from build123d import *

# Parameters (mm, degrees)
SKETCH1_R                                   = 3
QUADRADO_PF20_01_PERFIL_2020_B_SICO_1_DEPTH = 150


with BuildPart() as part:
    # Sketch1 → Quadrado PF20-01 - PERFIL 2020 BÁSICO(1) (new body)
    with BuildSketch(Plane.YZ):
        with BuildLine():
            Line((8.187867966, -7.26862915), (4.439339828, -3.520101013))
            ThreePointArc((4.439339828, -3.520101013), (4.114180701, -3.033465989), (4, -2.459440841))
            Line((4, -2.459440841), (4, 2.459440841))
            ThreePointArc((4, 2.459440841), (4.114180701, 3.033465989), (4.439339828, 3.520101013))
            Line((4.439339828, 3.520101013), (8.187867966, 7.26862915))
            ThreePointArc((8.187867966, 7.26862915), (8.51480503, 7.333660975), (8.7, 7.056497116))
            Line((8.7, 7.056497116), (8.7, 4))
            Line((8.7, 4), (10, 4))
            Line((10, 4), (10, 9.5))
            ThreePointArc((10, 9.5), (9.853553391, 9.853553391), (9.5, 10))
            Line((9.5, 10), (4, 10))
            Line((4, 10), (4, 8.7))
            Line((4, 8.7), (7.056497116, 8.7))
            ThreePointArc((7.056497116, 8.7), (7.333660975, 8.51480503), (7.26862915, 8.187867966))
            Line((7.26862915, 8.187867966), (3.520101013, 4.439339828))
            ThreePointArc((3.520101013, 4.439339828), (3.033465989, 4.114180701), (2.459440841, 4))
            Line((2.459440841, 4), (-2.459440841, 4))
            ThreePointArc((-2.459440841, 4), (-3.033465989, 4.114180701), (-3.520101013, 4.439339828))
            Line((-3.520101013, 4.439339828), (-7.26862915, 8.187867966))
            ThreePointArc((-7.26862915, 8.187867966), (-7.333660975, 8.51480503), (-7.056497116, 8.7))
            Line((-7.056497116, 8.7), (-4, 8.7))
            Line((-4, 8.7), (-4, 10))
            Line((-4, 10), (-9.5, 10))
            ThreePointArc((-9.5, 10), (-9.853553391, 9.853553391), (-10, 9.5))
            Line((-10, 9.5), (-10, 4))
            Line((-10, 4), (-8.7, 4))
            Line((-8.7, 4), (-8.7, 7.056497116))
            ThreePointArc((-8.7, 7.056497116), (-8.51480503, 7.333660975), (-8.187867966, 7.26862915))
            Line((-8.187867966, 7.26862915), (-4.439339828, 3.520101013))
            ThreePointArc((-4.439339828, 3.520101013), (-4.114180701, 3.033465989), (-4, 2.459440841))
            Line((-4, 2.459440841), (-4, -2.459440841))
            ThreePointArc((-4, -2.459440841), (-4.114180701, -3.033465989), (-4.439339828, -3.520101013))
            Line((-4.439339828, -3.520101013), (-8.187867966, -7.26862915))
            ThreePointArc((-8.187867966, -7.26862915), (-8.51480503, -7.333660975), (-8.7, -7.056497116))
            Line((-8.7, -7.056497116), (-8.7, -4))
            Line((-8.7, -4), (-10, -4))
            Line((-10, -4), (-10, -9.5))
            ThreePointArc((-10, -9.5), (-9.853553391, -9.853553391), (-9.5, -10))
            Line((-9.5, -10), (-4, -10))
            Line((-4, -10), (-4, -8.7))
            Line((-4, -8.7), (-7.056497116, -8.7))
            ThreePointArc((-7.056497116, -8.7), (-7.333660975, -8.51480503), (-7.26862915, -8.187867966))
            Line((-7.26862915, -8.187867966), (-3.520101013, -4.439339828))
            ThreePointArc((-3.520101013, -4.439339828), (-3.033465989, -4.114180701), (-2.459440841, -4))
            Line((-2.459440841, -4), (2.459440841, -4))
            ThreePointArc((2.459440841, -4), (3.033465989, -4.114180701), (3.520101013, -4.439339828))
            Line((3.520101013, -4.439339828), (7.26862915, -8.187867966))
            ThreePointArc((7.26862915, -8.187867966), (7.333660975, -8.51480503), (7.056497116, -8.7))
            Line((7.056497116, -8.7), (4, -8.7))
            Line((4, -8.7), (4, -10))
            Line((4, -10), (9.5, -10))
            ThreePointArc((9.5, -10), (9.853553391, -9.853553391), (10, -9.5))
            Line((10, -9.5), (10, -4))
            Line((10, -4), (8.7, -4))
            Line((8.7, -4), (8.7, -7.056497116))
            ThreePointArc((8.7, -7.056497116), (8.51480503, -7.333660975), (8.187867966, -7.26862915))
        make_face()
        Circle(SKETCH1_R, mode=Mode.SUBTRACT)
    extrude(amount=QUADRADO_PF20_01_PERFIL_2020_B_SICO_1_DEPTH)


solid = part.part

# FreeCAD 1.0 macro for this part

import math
import FreeCAD as App
import Part
import Sketcher
from FreeCAD import Vector
Q = App.Units.Quantity

doc = App.newDocument("Part")
body = doc.addObject("PartDesign::Body", "Body")

sketch1 = body.newObject("Sketcher::SketchObject", "Sketch")
sketch1.AttachmentSupport = (doc.getObject("YZ_Plane"), [""])
sketch1.MapMode = "FlatFace"
sketch1.addGeometry([
    Part.LineSegment(Vector(8.187868, -7.268629, 0), Vector(4.43934, -3.520101, 0)),
    Part.ArcOfCircle(Part.Circle(Vector(5.5, -2.459441, 0), Vector(0, 0, 1), 1.5), math.radians(180), math.radians(225)),
    Part.LineSegment(Vector(4, -2.459441, 0), Vector(4, 2.459441, 0)),
    Part.ArcOfCircle(Part.Circle(Vector(5.5, 2.459441, 0), Vector(0, 0, 1), 1.5), math.radians(135), math.radians(180)),
    Part.LineSegment(Vector(4.43934, 3.520101, 0), Vector(8.187868, 7.268629, 0)),
    Part.ArcOfCircle(Part.Circle(Vector(8.4, 7.056497, 0), Vector(0, 0, 1), 0.3), math.radians(0), math.radians(135)),
    Part.LineSegment(Vector(8.7, 7.056497, 0), Vector(8.7, 4, 0)),
    Part.LineSegment(Vector(8.7, 4, 0), Vector(10, 4, 0)),
    Part.LineSegment(Vector(10, 4, 0), Vector(10, 9.5, 0)),
    Part.ArcOfCircle(Part.Circle(Vector(9.5, 9.5, 0), Vector(0, 0, 1), 0.5), math.radians(0), math.radians(90)),
    Part.LineSegment(Vector(9.5, 10, 0), Vector(4, 10, 0)),
    Part.LineSegment(Vector(4, 10, 0), Vector(4, 8.7, 0)),
    Part.LineSegment(Vector(4, 8.7, 0), Vector(7.056497, 8.7, 0)),
    Part.ArcOfCircle(Part.Circle(Vector(7.056497, 8.4, 0), Vector(0, 0, 1), 0.3), math.radians(-45), math.radians(90)),
    Part.LineSegment(Vector(7.268629, 8.187868, 0), Vector(3.520101, 4.43934, 0)),
    Part.ArcOfCircle(Part.Circle(Vector(2.459441, 5.5, 0), Vector(0, 0, 1), 1.5), math.radians(-90), math.radians(-45)),
    Part.LineSegment(Vector(2.459441, 4, 0), Vector(-2.459441, 4, 0)),
    Part.ArcOfCircle(Part.Circle(Vector(-2.459441, 5.5, 0), Vector(0, 0, 1), 1.5), math.radians(-135), math.radians(-90)),
    Part.LineSegment(Vector(-3.520101, 4.43934, 0), Vector(-7.268629, 8.187868, 0)),
    Part.ArcOfCircle(Part.Circle(Vector(-7.056497, 8.4, 0), Vector(0, 0, 1), 0.3), math.radians(90), math.radians(225)),
    Part.LineSegment(Vector(-7.056497, 8.7, 0), Vector(-4, 8.7, 0)),
    Part.LineSegment(Vector(-4, 8.7, 0), Vector(-4, 10, 0)),
    Part.LineSegment(Vector(-4, 10, 0), Vector(-9.5, 10, 0)),
    Part.ArcOfCircle(Part.Circle(Vector(-9.5, 9.5, 0), Vector(0, 0, 1), 0.5), math.radians(90), math.radians(180)),
    Part.LineSegment(Vector(-10, 9.5, 0), Vector(-10, 4, 0)),
    Part.LineSegment(Vector(-10, 4, 0), Vector(-8.7, 4, 0)),
    Part.LineSegment(Vector(-8.7, 4, 0), Vector(-8.7, 7.056497, 0)),
    Part.ArcOfCircle(Part.Circle(Vector(-8.4, 7.056497, 0), Vector(0, 0, 1), 0.3), math.radians(45), math.radians(180)),
    Part.LineSegment(Vector(-8.187868, 7.268629, 0), Vector(-4.43934, 3.520101, 0)),
    Part.ArcOfCircle(Part.Circle(Vector(-5.5, 2.459441, 0), Vector(0, 0, 1), 1.5), math.radians(0), math.radians(45)),
    Part.LineSegment(Vector(-4, 2.459441, 0), Vector(-4, -2.459441, 0)),
    Part.ArcOfCircle(Part.Circle(Vector(-5.5, -2.459441, 0), Vector(0, 0, 1), 1.5), math.radians(-45), math.radians(0)),
    Part.LineSegment(Vector(-4.43934, -3.520101, 0), Vector(-8.187868, -7.268629, 0)),
    Part.ArcOfCircle(Part.Circle(Vector(-8.4, -7.056497, 0), Vector(0, 0, 1), 0.3), math.radians(-180), math.radians(-45)),
    Part.LineSegment(Vector(-8.7, -7.056497, 0), Vector(-8.7, -4, 0)),
    Part.LineSegment(Vector(-8.7, -4, 0), Vector(-10, -4, 0)),
    Part.LineSegment(Vector(-10, -4, 0), Vector(-10, -9.5, 0)),
    Part.ArcOfCircle(Part.Circle(Vector(-9.5, -9.5, 0), Vector(0, 0, 1), 0.5), math.radians(180), math.radians(270)),
    Part.LineSegment(Vector(-9.5, -10, 0), Vector(-4, -10, 0)),
    Part.LineSegment(Vector(-4, -10, 0), Vector(-4, -8.7, 0)),
    Part.LineSegment(Vector(-4, -8.7, 0), Vector(-7.056497, -8.7, 0)),
    Part.ArcOfCircle(Part.Circle(Vector(-7.056497, -8.4, 0), Vector(0, 0, 1), 0.3), math.radians(135), math.radians(270)),
    Part.LineSegment(Vector(-7.268629, -8.187868, 0), Vector(-3.520101, -4.43934, 0)),
    Part.ArcOfCircle(Part.Circle(Vector(-2.459441, -5.5, 0), Vector(0, 0, 1), 1.5), math.radians(90), math.radians(135)),
    Part.LineSegment(Vector(-2.459441, -4, 0), Vector(2.459441, -4, 0)),
    Part.ArcOfCircle(Part.Circle(Vector(2.459441, -5.5, 0), Vector(0, 0, 1), 1.5), math.radians(45), math.radians(90)),
    Part.LineSegment(Vector(3.520101, -4.43934, 0), Vector(7.268629, -8.187868, 0)),
    Part.ArcOfCircle(Part.Circle(Vector(7.056497, -8.4, 0), Vector(0, 0, 1), 0.3), math.radians(-90), math.radians(45)),
    Part.LineSegment(Vector(7.056497, -8.7, 0), Vector(4, -8.7, 0)),
    Part.LineSegment(Vector(4, -8.7, 0), Vector(4, -10, 0)),
    Part.LineSegment(Vector(4, -10, 0), Vector(9.5, -10, 0)),
    Part.ArcOfCircle(Part.Circle(Vector(9.5, -9.5, 0), Vector(0, 0, 1), 0.5), math.radians(-90), math.radians(0)),
    Part.LineSegment(Vector(10, -9.5, 0), Vector(10, -4, 0)),
    Part.LineSegment(Vector(10, -4, 0), Vector(8.7, -4, 0)),
    Part.LineSegment(Vector(8.7, -4, 0), Vector(8.7, -7.056497, 0)),
    Part.ArcOfCircle(Part.Circle(Vector(8.4, -7.056497, 0), Vector(0, 0, 1), 0.3), math.radians(-135), math.radians(0)),
    Part.Circle(Vector(0, 0, 0), Vector(0, 0, 1), 3),
], False)
sketch1.addConstraint([
    Sketcher.Constraint("Tangent", 0, 2, 1, 2),
    Sketcher.Constraint("Tangent", 1, 1, 2, 1),
    Sketcher.Constraint("Tangent", 2, 2, 3, 2),
    Sketcher.Constraint("Tangent", 3, 1, 4, 1),
    Sketcher.Constraint("Tangent", 4, 2, 5, 2),
    Sketcher.Constraint("Tangent", 5, 1, 6, 1),
    Sketcher.Constraint("Coincident", 6, 2, 7, 1),
    Sketcher.Constraint("Coincident", 7, 2, 8, 1),
    Sketcher.Constraint("Tangent", 8, 2, 9, 1),
    Sketcher.Constraint("Tangent", 9, 2, 10, 1),
    Sketcher.Constraint("Coincident", 10, 2, 11, 1),
    Sketcher.Constraint("Coincident", 11, 2, 12, 1),
    Sketcher.Constraint("Tangent", 12, 2, 13, 2),
    Sketcher.Constraint("Tangent", 13, 1, 14, 1),
    Sketcher.Constraint("Tangent", 14, 2, 15, 2),
    Sketcher.Constraint("Tangent", 15, 1, 16, 1),
    Sketcher.Constraint("Tangent", 16, 2, 17, 2),
    Sketcher.Constraint("Tangent", 17, 1, 18, 1),
    Sketcher.Constraint("Tangent", 18, 2, 19, 2),
    Sketcher.Constraint("Tangent", 19, 1, 20, 1),
    Sketcher.Constraint("Coincident", 20, 2, 21, 1),
    Sketcher.Constraint("Coincident", 21, 2, 22, 1),
    Sketcher.Constraint("Tangent", 22, 2, 23, 1),
    Sketcher.Constraint("Tangent", 23, 2, 24, 1),
    Sketcher.Constraint("Coincident", 24, 2, 25, 1),
    Sketcher.Constraint("Coincident", 25, 2, 26, 1),
    Sketcher.Constraint("Tangent", 26, 2, 27, 2),
    Sketcher.Constraint("Tangent", 27, 1, 28, 1),
    Sketcher.Constraint("Tangent", 28, 2, 29, 2),
    Sketcher.Constraint("Tangent", 29, 1, 30, 1),
    Sketcher.Constraint("Tangent", 30, 2, 31, 2),
    Sketcher.Constraint("Tangent", 31, 1, 32, 1),
    Sketcher.Constraint("Tangent", 32, 2, 33, 2),
    Sketcher.Constraint("Tangent", 33, 1, 34, 1),
    Sketcher.Constraint("Coincident", 34, 2, 35, 1),
    Sketcher.Constraint("Coincident", 35, 2, 36, 1),
    Sketcher.Constraint("Tangent", 36, 2, 37, 1),
    Sketcher.Constraint("Tangent", 37, 2, 38, 1),
    Sketcher.Constraint("Coincident", 38, 2, 39, 1),
    Sketcher.Constraint("Coincident", 39, 2, 40, 1),
    Sketcher.Constraint("Tangent", 40, 2, 41, 2),
    Sketcher.Constraint("Tangent", 41, 1, 42, 1),
    Sketcher.Constraint("Tangent", 42, 2, 43, 2),
    Sketcher.Constraint("Tangent", 43, 1, 44, 1),
    Sketcher.Constraint("Tangent", 44, 2, 45, 2),
    Sketcher.Constraint("Tangent", 45, 1, 46, 1),
    Sketcher.Constraint("Tangent", 46, 2, 47, 2),
    Sketcher.Constraint("Tangent", 47, 1, 48, 1),
    Sketcher.Constraint("Coincident", 48, 2, 49, 1),
    Sketcher.Constraint("Coincident", 49, 2, 50, 1),
    Sketcher.Constraint("Tangent", 50, 2, 51, 1),
    Sketcher.Constraint("Tangent", 51, 2, 52, 1),
    Sketcher.Constraint("Coincident", 52, 2, 53, 1),
    Sketcher.Constraint("Coincident", 53, 2, 54, 1),
    Sketcher.Constraint("Tangent", 54, 2, 55, 2),
    Sketcher.Constraint("Tangent", 55, 1, 0, 1),
    Sketcher.Constraint("Vertical", 2),
    Sketcher.Constraint("Vertical", 6),
    Sketcher.Constraint("Horizontal", 7),
    Sketcher.Constraint("Vertical", 8),
    Sketcher.Constraint("Horizontal", 10),
    Sketcher.Constraint("Vertical", 11),
    Sketcher.Constraint("Horizontal", 12),
    Sketcher.Constraint("Horizontal", 16),
    Sketcher.Constraint("Horizontal", 20),
    Sketcher.Constraint("Vertical", 21),
    Sketcher.Constraint("Horizontal", 22),
    Sketcher.Constraint("Vertical", 24),
    Sketcher.Constraint("Horizontal", 25),
    Sketcher.Constraint("Vertical", 26),
    Sketcher.Constraint("Vertical", 30),
    Sketcher.Constraint("Vertical", 34),
    Sketcher.Constraint("Horizontal", 35),
    Sketcher.Constraint("Vertical", 36),
    Sketcher.Constraint("Horizontal", 38),
    Sketcher.Constraint("Vertical", 39),
    Sketcher.Constraint("Horizontal", 40),
    Sketcher.Constraint("Horizontal", 44),
    Sketcher.Constraint("Horizontal", 48),
    Sketcher.Constraint("Vertical", 49),
    Sketcher.Constraint("Horizontal", 50),
    Sketcher.Constraint("Vertical", 52),
    Sketcher.Constraint("Horizontal", 53),
    Sketcher.Constraint("Vertical", 54),
    Sketcher.Constraint("Coincident", 56, 3, -1, 1),
    Sketcher.Constraint("Equal", 1, 3),
    Sketcher.Constraint("Equal", 5, 13),
    Sketcher.Constraint("Equal", 3, 15),
    Sketcher.Constraint("Equal", 15, 17),
    Sketcher.Constraint("Equal", 13, 19),
    Sketcher.Constraint("Equal", 9, 23),
    Sketcher.Constraint("Equal", 19, 27),
    Sketcher.Constraint("Equal", 17, 29),
    Sketcher.Constraint("Equal", 29, 31),
    Sketcher.Constraint("Equal", 27, 33),
    Sketcher.Constraint("Equal", 23, 37),
    Sketcher.Constraint("Equal", 33, 41),
    Sketcher.Constraint("Equal", 31, 43),
    Sketcher.Constraint("Equal", 43, 45),
    Sketcher.Constraint("Equal", 41, 47),
    Sketcher.Constraint("Equal", 37, 51),
    Sketcher.Constraint("Equal", 47, 55),
    Sketcher.Constraint("Symmetric", 1, 3, 29, 3, -1, 1),
    Sketcher.Constraint("Symmetric", 5, 3, 33, 3, -1, 1),
    Sketcher.Constraint("Symmetric", 9, 3, 37, 3, -1, 1),
    Sketcher.Constraint("Symmetric", 13, 3, 41, 3, -1, 1),
    Sketcher.Constraint("Symmetric", 15, 3, 43, 3, -1, 1),
    Sketcher.Constraint("Symmetric", 19, 3, 47, 3, -1, 1),
    Sketcher.Constraint("Symmetric", 23, 3, 51, 3, -1, 1),
    Sketcher.Constraint("Symmetric", 27, 3, 55, 3, -1, 1),
    Sketcher.Constraint("Symmetric", 13, 3, 19, 3, -2),
    Sketcher.Constraint("Symmetric", 9, 3, 23, 3, -2),
    Sketcher.Constraint("Symmetric", 5, 3, 27, 3, -2),
    Sketcher.Constraint("Perpendicular", 0, 4),
    Sketcher.Constraint("Parallel", 4, 14),
    Sketcher.Constraint("Perpendicular", 14, 18),
    Sketcher.Constraint("Perpendicular", 28, 32),
    Sketcher.Constraint("Perpendicular", 42, 46),
    Sketcher.Constraint("Horizontal", 3, 3, 29, 3),
    Sketcher.Constraint("Horizontal", 7, 2, 15, 1),
    Sketcher.Constraint("Horizontal", 16, 2, 24, 2),
    Sketcher.Constraint("Horizontal", 35, 2, 43, 1),
    Sketcher.Constraint("Horizontal", 44, 2, 52, 2),
    Sketcher.Constraint("Vertical", 2, 2, 10, 2),
    Sketcher.Constraint("Vertical", 21, 2, 29, 1),
    Sketcher.Constraint("Vertical", 30, 2, 38, 2),
    Sketcher.Constraint("Vertical", 11, 2, 48, 2),
    Sketcher.Constraint("Equal", 44, 2),
    Sketcher.Constraint("Equal", 48, 6),
    Sketcher.Constraint("Equal", 50, 8),
    Sketcher.Constraint("Equal", 53, 11),
    Sketcher.Constraint("Diameter", 56, Q("6 mm")),
    Sketcher.Constraint("Radius", 1, Q("1.5 mm")),
    Sketcher.Constraint("Radius", 5, Q("0.3 mm")),
    Sketcher.Constraint("Radius", 9, Q("0.5 mm")),
    Sketcher.Constraint("DistanceX", 7, 1, 7, 2, Q("1.3 mm")),
    Sketcher.Constraint("DistanceX", 10, 2, 10, 1, Q("5.5 mm")),
    Sketcher.Constraint("DistanceX", -1, 1, 1, 1, Q("4 mm")),
    Sketcher.Constraint("DistanceX", 16, 2, 16, 1, Q("4.918882 mm")),
])
pad1 = body.newObject("PartDesign::Pad", "Pad")
pad1.Profile = sketch1
pad1.Length = 150

doc.recompute()
